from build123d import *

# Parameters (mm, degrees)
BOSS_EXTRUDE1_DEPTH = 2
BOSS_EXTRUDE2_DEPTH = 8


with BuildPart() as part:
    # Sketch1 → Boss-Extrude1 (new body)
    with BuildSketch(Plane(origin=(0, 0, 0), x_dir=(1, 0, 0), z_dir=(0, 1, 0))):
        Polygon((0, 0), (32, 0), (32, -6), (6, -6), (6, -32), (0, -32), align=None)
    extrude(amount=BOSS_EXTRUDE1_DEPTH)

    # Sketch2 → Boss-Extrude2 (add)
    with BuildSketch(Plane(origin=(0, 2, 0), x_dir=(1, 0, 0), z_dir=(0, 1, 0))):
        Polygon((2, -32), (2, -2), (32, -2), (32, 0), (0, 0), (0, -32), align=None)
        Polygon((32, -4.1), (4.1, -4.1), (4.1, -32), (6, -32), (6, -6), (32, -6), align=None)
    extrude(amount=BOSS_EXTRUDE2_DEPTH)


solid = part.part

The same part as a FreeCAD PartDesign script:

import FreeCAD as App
import Part
import Sketcher

V = App.Vector

doc = App.newDocument("Part")
params = doc.addObject("Spreadsheet::Sheet", "Params")
for row, (alias, value) in enumerate([
    ("sketch1_width", "32 mm"),
    ("sketch1_width2", "6 mm"),
    ("pad1_length", "2 mm"),
    ("sketch2_width", "30 mm"),
    ("sketch2_width2", "32 mm"),
    ("sketch2_width3", "26 mm"),
    ("sketch2_width4", "27.9 mm"),
    ("pad2_length", "8 mm"),
], start=1):
    params.set(f"A{row}", alias)
    params.set(f"B{row}", "=" + value)
    params.setAlias(f"B{row}", alias)

body = doc.addObject("PartDesign::Body", "Body")

sketch1 = body.newObject("Sketcher::SketchObject", "Sketch")
sketch1.AttachmentSupport = (doc.getObject("XZ_Plane"), [""])
sketch1.MapMode = "FlatFace"
sketch1.addGeometry([
    Part.LineSegment(V(32, 0, 0), V(0, 0, 0)),
    Part.LineSegment(V(0, 0, 0), V(0, 32, 0)),
    Part.LineSegment(V(0, 32, 0), V(6, 32, 0)),
    Part.LineSegment(V(6, 32, 0), V(6, 6, 0)),
    Part.LineSegment(V(6, 6, 0), V(32, 6, 0)),
    Part.LineSegment(V(32, 6, 0), V(32, 0, 0)),
], False)
sketch1.addConstraint([
    Sketcher.Constraint("Coincident", 0, 2, 1, 1),
    Sketcher.Constraint("Coincident", 1, 2, 2, 1),
    Sketcher.Constraint("Coincident", 2, 2, 3, 1),
    Sketcher.Constraint("Coincident", 3, 2, 4, 1),
    Sketcher.Constraint("Coincident", 4, 2, 5, 1),
    Sketcher.Constraint("Coincident", 5, 2, 0, 1),
    Sketcher.Constraint("Horizontal", 0),
    Sketcher.Constraint("Vertical", 1),
    Sketcher.Constraint("Horizontal", 2),
    Sketcher.Constraint("Vertical", 3),
    Sketcher.Constraint("Horizontal", 4),
    Sketcher.Constraint("Vertical", 5),
    Sketcher.Constraint("Coincident", 0, 2, -1, 1),
    Sketcher.Constraint("Equal", 0, 1),
    Sketcher.Constraint("Equal", 4, 3),
    Sketcher.Constraint("DistanceX", 0, 2, 0, 1, 32.0),
    Sketcher.Constraint("DistanceX", 2, 1, 2, 2, 6.0),
])
sketch1.setExpression("Constraints[15]", "Params.sketch1_width")
sketch1.setExpression("Constraints[16]", "Params.sketch1_width2")
pad1 = body.newObject("PartDesign::Pad", "Pad")
pad1.Profile = sketch1
pad1.setExpression("Length", "Params.pad1_length")
pad1.Reversed = True

sketch2 = body.newObject("Sketcher::SketchObject", "Sketch001")
sketch2.AttachmentSupport = (doc.getObject("XZ_Plane"), [""])
sketch2.MapMode = "FlatFace"
sketch2.AttachmentOffset = App.Placement(V(0, 0, -2), App.Rotation())
sketch2.addGeometry([
    Part.LineSegment(V(2, 32, 0), V(2, 2, 0)),
    Part.LineSegment(V(2, 2, 0), V(32, 2, 0)),
    Part.LineSegment(V(32, 2, 0), V(32, 0, 0)),
    Part.LineSegment(V(32, 0, 0), V(0, 0, 0)),
    Part.LineSegment(V(0, 0, 0), V(0, 32, 0)),
    Part.LineSegment(V(0, 32, 0), V(2, 32, 0)),
    Part.LineSegment(V(32, 4.1, 0), V(4.1, 4.1, 0)),
    Part.LineSegment(V(4.1, 4.1, 0), V(4.1, 32, 0)),
    Part.LineSegment(V(4.1, 32, 0), V(6, 32, 0)),
    Part.LineSegment(V(6, 32, 0), V(6, 6, 0)),
    Part.LineSegment(V(6, 6, 0), V(32, 6, 0)),
    Part.LineSegment(V(32, 6, 0), V(32, 4.1, 0)),
], False)
sketch2.addConstraint([
    Sketcher.Constraint("Coincident", 0, 2, 1, 1),
    Sketcher.Constraint("Coincident", 1, 2, 2, 1),
    Sketcher.Constraint("Coincident", 2, 2, 3, 1),
    Sketcher.Constraint("Coincident", 3, 2, 4, 1),
    Sketcher.Constraint("Coincident", 4, 2, 5, 1),
    Sketcher.Constraint("Coincident", 5, 2, 0, 1),
    Sketcher.Constraint("Coincident", 6, 2, 7, 1),
    Sketcher.Constraint("Coincident", 7, 2, 8, 1),
    Sketcher.Constraint("Coincident", 8, 2, 9, 1),
    Sketcher.Constraint("Coincident", 9, 2, 10, 1),
    Sketcher.Constraint("Coincident", 10, 2, 11, 1),
    Sketcher.Constraint("Coincident", 11, 2, 6, 1),
    Sketcher.Constraint("Vertical", 0),
    Sketcher.Constraint("Horizontal", 1),
    Sketcher.Constraint("Vertical", 2),
    Sketcher.Constraint("Horizontal", 3),
    Sketcher.Constraint("Vertical", 4),
    Sketcher.Constraint("Horizontal", 5),
    Sketcher.Constraint("Horizontal", 6),
    Sketcher.Constraint("Vertical", 7),
    Sketcher.Constraint("Horizontal", 8),
    Sketcher.Constraint("Vertical", 9),
    Sketcher.Constraint("Horizontal", 10),
    Sketcher.Constraint("Vertical", 11),
    Sketcher.Constraint("Coincident", 3, 2, -1, 1),
    Sketcher.Constraint("Horizontal", 5, 2, 7, 2),
    Sketcher.Constraint("Vertical", 2, 2, 10, 2),
    Sketcher.Constraint("Equal", 1, 0),
    Sketcher.Constraint("Equal", 5, 2),
    Sketcher.Constraint("Equal", 6, 7),
    Sketcher.Constraint("Equal", 10, 9),
    Sketcher.Constraint("DistanceX", 1, 1, 1, 2, 30.0),
    Sketcher.Constraint("DistanceX", 3, 2, 3, 1, 32.0),
    Sketcher.Constraint("DistanceX", 10, 1, 10, 2, 26.0),
    Sketcher.Constraint("DistanceX", 6, 2, 6, 1, 27.9),
])
sketch2.setExpression("Constraints[31]", "Params.sketch2_width")
sketch2.setExpression("Constraints[32]", "Params.sketch2_width2")
sketch2.setExpression("Constraints[33]", "Params.sketch2_width3")
sketch2.setExpression("Constraints[34]", "Params.sketch2_width4")
pad2 = body.newObject("PartDesign::Pad", "Pad001")
pad2.Profile = sketch2
pad2.setExpression("Length", "Params.pad2_length")
pad2.Reversed = True

doc.recompute()
